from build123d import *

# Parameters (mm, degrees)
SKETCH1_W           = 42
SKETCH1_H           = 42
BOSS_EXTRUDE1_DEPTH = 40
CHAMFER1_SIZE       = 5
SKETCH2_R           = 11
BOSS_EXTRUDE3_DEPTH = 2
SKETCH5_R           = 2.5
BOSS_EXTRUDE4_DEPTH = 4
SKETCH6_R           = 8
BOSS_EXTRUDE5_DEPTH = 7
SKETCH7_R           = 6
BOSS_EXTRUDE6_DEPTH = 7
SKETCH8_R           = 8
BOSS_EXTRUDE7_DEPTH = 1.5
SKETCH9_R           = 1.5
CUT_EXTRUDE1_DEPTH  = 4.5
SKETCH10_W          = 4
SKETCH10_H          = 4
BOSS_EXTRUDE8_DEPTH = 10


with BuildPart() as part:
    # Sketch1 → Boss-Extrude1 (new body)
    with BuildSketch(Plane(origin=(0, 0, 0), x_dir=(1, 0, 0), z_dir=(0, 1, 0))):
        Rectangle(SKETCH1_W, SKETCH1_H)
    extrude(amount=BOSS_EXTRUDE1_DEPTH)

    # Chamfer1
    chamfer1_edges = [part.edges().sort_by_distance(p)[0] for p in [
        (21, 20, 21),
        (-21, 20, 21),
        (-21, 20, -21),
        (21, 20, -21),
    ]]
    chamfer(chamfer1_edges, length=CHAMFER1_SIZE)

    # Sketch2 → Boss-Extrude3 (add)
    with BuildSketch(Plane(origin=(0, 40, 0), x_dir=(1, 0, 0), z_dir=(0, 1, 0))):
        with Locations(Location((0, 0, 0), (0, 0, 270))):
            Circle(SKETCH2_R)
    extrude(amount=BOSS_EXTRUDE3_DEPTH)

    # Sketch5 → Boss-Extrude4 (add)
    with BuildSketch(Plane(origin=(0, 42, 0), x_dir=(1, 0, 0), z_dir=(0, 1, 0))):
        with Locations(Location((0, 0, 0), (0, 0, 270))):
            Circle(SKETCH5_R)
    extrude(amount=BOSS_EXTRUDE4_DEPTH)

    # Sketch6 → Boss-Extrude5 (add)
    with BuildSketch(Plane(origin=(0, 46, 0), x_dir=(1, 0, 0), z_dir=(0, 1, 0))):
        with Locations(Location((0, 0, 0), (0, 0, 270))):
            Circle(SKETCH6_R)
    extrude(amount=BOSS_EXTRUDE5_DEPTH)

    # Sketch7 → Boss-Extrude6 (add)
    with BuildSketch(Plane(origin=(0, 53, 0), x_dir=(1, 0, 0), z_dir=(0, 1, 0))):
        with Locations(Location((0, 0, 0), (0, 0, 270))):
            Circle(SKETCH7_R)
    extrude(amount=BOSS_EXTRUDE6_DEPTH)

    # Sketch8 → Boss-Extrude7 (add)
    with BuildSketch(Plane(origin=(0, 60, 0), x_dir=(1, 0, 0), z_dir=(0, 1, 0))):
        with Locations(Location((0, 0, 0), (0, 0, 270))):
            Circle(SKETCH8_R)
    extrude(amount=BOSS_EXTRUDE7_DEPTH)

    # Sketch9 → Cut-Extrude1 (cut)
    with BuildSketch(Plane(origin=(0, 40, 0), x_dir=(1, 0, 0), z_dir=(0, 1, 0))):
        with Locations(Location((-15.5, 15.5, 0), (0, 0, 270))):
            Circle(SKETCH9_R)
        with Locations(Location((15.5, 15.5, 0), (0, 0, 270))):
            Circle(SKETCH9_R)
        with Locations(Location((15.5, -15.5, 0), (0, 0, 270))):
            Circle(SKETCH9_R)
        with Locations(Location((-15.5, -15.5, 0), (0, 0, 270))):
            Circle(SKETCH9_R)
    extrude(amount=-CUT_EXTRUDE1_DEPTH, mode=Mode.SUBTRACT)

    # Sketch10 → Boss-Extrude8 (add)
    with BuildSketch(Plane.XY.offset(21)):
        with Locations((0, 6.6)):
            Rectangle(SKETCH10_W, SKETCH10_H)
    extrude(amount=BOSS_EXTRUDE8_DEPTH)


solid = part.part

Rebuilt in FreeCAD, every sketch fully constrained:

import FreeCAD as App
import Part
import Sketcher
from FreeCAD import Vector


def edges_at(feature, points):
    """Names of the edges that pass closest to the given points."""
    edges = feature.Shape.Edges
    near = lambda p: min(range(len(edges)), key=lambda i: edges[i].distToShape(Part.Vertex(*p))[0])
    return sorted({f"Edge{near(p) + 1}" for p in points})


def add_polygon(sketch, points):
    """Adds a closed chain of lines whose ends are joined by coincident constraints."""
    first, n = sketch.GeometryCount, len(points)
    for a, b in zip(points, points[1:] + points[:1]):
        sketch.addGeometry(Part.LineSegment(App.Vector(*a, 0), App.Vector(*b, 0)), False)
    for i in range(n):
        sketch.addConstraint(Sketcher.Constraint("Coincident", first + i, 2, first + (i + 1) % n, 1))

doc = App.newDocument("Part")
body = doc.addObject("PartDesign::Body", "Body")

sketch1 = body.newObject("Sketcher::SketchObject", "Sketch")
sketch1.AttachmentSupport = (doc.getObject("XZ_Plane"), [""])
sketch1.MapMode = "FlatFace"
add_polygon(sketch1, [(-21, -21), (-21, 21), (21, 21), (21, -21)])
sketch1.addConstraint(Sketcher.Constraint("Vertical", 0))
sketch1.addConstraint(Sketcher.Constraint("Horizontal", 1))
sketch1.addConstraint(Sketcher.Constraint("Vertical", 2))
sketch1.addConstraint(Sketcher.Constraint("Horizontal", 3))
sketch1.addConstraint(Sketcher.Constraint("Symmetric", 0, 2, 2, 2, -1, 1))
sketch1.addConstraint(Sketcher.Constraint("Equal", 3, 0))
sketch1.addConstraint(Sketcher.Constraint("DistanceX", 1, 1, 1, 2, 42.0))
pad1 = body.newObject("PartDesign::Pad", "Pad")
pad1.Profile = sketch1
pad1.Length = 40
pad1.Reversed = True
doc.recompute()

chamfer = body.newObject("PartDesign::Chamfer", "Chamfer")
chamfer.Base = (pad1, edges_at(pad1, [
    (21, 20, 21),
    (-21, 20, 21),
    (-21, 20, -21),
    (21, 20, -21),
]))
chamfer.Size = 5

sketch2 = body.newObject("Sketcher::SketchObject", "Sketch001")
sketch2.AttachmentSupport = (doc.getObject("XZ_Plane"), [""])
sketch2.MapMode = "FlatFace"
sketch2.AttachmentOffset = App.Placement(Vector(0, 0, -40), App.Rotation())
sketch2.addGeometry(Part.Circle(Vector(0, 0, 0), Vector(0, 0, 1), 11), False)
sketch2.addConstraint(Sketcher.Constraint("Coincident", 0, 3, -1, 1))
sketch2.addConstraint(Sketcher.Constraint("Diameter", 0, 22.0))
pad2 = body.newObject("PartDesign::Pad", "Pad001")
pad2.Profile = sketch2
pad2.Length = 2
pad2.Reversed = True

sketch3 = body.newObject("Sketcher::SketchObject", "Sketch002")
sketch3.AttachmentSupport = (doc.getObject("XZ_Plane"), [""])
sketch3.MapMode = "FlatFace"
sketch3.AttachmentOffset = App.Placement(Vector(0, 0, -42), App.Rotation())
sketch3.addGeometry(Part.Circle(Vector(0, 0, 0), Vector(0, 0, 1), 2.5), False)
sketch3.addConstraint(Sketcher.Constraint("Coincident", 0, 3, -1, 1))
sketch3.addConstraint(Sketcher.Constraint("Diameter", 0, 5.0))
pad3 = body.newObject("PartDesign::Pad", "Pad002")
pad3.Profile = sketch3
pad3.Length = 4
pad3.Reversed = True

sketch4 = body.newObject("Sketcher::SketchObject", "Sketch003")
sketch4.AttachmentSupport = (doc.getObject("XZ_Plane"), [""])
sketch4.MapMode = "FlatFace"
sketch4.AttachmentOffset = App.Placement(Vector(0, 0, -46), App.Rotation())
sketch4.addGeometry(Part.Circle(Vector(0, 0, 0), Vector(0, 0, 1), 8), False)
sketch4.addConstraint(Sketcher.Constraint("Coincident", 0, 3, -1, 1))
sketch4.addConstraint(Sketcher.Constraint("Diameter", 0, 16.0))
pad4 = body.newObject("PartDesign::Pad", "Pad003")
pad4.Profile = sketch4
pad4.Length = 7
pad4.Reversed = True

sketch5 = body.newObject("Sketcher::SketchObject", "Sketch004")
sketch5.AttachmentSupport = (doc.getObject("XZ_Plane"), [""])
sketch5.MapMode = "FlatFace"
sketch5.AttachmentOffset = App.Placement(Vector(0, 0, -53), App.Rotation())
sketch5.addGeometry(Part.Circle(Vector(0, 0, 0), Vector(0, 0, 1), 6), False)
sketch5.addConstraint(Sketcher.Constraint("Coincident", 0, 3, -1, 1))
sketch5.addConstraint(Sketcher.Constraint("Diameter", 0, 12.0))
pad5 = body.newObject("PartDesign::Pad", "Pad004")
pad5.Profile = sketch5
pad5.Length = 7
pad5.Reversed = True

sketch6 = body.newObject("Sketcher::SketchObject", "Sketch005")
sketch6.AttachmentSupport = (doc.getObject("XZ_Plane"), [""])
sketch6.MapMode = "FlatFace"
sketch6.AttachmentOffset = App.Placement(Vector(0, 0, -60), App.Rotation())
sketch6.addGeometry(Part.Circle(Vector(0, 0, 0), Vector(0, 0, 1), 8), False)
sketch6.addConstraint(Sketcher.Constraint("Coincident", 0, 3, -1, 1))
sketch6.addConstraint(Sketcher.Constraint("Diameter", 0, 16.0))
pad6 = body.newObject("PartDesign::Pad", "Pad005")
pad6.Profile = sketch6
pad6.Length = 1.5
pad6.Reversed = True

sketch7 = body.newObject("Sketcher::SketchObject", "Sketch006")
sketch7.AttachmentSupport = (doc.getObject("XZ_Plane"), [""])
sketch7.MapMode = "FlatFace"
sketch7.AttachmentOffset = App.Placement(Vector(0, 0, -40), App.Rotation())
sketch7.addGeometry(Part.Circle(Vector(-15.5, -15.5, 0), Vector(0, 0, 1), 1.5), False)
sketch7.addGeometry(Part.Circle(Vector(15.5, -15.5, 0), Vector(0, 0, 1), 1.5), False)
sketch7.addGeometry(Part.Circle(Vector(15.5, 15.5, 0), Vector(0, 0, 1), 1.5), False)
sketch7.addGeometry(Part.Circle(Vector(-15.5, 15.5, 0), Vector(0, 0, 1), 1.5), False)
sketch7.addConstraint(Sketcher.Constraint("Equal", 0, 1))
sketch7.addConstraint(Sketcher.Constraint("Equal", 1, 2))
sketch7.addConstraint(Sketcher.Constraint("Equal", 2, 3))
sketch7.addConstraint(Sketcher.Constraint("Symmetric", 0, 3, 2, 3, -1, 1))
sketch7.addConstraint(Sketcher.Constraint("Symmetric", 1, 3, 3, 3, -1, 1))
sketch7.addConstraint(Sketcher.Constraint("Symmetric", 0, 3, 1, 3, -2))
sketch7.addConstraint(Sketcher.Constraint("Diameter", 0, 3.0))
sketch7.addConstraint(Sketcher.Constraint("DistanceX", 0, 3, 1, 3, 31.0))
sketch7.addConstraint(Sketcher.Constraint("DistanceY", 1, 3, 2, 3, 31.0))
pocket1 = body.newObject("PartDesign::Pocket", "Pocket")
pocket1.Profile = sketch7
pocket1.Length = 4.5
pocket1.Reversed = True

sketch8 = body.newObject("Sketcher::SketchObject", "Sketch007")
sketch8.AttachmentSupport = (doc.getObject("XY_Plane"), [""])
sketch8.MapMode = "FlatFace"
sketch8.AttachmentOffset = App.Placement(Vector(0, 0, 21), App.Rotation())
add_polygon(sketch8, [(-2, 8.6), (-2, 4.6), (2, 4.6), (2, 8.6)])
sketch8.addConstraint(Sketcher.Constraint("Vertical", 0))
sketch8.addConstraint(Sketcher.Constraint("Horizontal", 1))
sketch8.addConstraint(Sketcher.Constraint("Vertical", 2))
sketch8.addConstraint(Sketcher.Constraint("Horizontal", 3))
sketch8.addConstraint(Sketcher.Constraint("Equal", 3, 0))
sketch8.addConstraint(Sketcher.Constraint("DistanceX", 1, 1, 1, 2, 4.0))
sketch8.addConstraint(Sketcher.Constraint("DistanceX", 0, 2, -1, 1, 2.0))
sketch8.addConstraint(Sketcher.Constraint("DistanceY", -1, 1, 0, 2, 4.6))
pad7 = body.newObject("PartDesign::Pad", "Pad006")
pad7.Profile = sketch8
pad7.Length = 10

doc.recompute()
